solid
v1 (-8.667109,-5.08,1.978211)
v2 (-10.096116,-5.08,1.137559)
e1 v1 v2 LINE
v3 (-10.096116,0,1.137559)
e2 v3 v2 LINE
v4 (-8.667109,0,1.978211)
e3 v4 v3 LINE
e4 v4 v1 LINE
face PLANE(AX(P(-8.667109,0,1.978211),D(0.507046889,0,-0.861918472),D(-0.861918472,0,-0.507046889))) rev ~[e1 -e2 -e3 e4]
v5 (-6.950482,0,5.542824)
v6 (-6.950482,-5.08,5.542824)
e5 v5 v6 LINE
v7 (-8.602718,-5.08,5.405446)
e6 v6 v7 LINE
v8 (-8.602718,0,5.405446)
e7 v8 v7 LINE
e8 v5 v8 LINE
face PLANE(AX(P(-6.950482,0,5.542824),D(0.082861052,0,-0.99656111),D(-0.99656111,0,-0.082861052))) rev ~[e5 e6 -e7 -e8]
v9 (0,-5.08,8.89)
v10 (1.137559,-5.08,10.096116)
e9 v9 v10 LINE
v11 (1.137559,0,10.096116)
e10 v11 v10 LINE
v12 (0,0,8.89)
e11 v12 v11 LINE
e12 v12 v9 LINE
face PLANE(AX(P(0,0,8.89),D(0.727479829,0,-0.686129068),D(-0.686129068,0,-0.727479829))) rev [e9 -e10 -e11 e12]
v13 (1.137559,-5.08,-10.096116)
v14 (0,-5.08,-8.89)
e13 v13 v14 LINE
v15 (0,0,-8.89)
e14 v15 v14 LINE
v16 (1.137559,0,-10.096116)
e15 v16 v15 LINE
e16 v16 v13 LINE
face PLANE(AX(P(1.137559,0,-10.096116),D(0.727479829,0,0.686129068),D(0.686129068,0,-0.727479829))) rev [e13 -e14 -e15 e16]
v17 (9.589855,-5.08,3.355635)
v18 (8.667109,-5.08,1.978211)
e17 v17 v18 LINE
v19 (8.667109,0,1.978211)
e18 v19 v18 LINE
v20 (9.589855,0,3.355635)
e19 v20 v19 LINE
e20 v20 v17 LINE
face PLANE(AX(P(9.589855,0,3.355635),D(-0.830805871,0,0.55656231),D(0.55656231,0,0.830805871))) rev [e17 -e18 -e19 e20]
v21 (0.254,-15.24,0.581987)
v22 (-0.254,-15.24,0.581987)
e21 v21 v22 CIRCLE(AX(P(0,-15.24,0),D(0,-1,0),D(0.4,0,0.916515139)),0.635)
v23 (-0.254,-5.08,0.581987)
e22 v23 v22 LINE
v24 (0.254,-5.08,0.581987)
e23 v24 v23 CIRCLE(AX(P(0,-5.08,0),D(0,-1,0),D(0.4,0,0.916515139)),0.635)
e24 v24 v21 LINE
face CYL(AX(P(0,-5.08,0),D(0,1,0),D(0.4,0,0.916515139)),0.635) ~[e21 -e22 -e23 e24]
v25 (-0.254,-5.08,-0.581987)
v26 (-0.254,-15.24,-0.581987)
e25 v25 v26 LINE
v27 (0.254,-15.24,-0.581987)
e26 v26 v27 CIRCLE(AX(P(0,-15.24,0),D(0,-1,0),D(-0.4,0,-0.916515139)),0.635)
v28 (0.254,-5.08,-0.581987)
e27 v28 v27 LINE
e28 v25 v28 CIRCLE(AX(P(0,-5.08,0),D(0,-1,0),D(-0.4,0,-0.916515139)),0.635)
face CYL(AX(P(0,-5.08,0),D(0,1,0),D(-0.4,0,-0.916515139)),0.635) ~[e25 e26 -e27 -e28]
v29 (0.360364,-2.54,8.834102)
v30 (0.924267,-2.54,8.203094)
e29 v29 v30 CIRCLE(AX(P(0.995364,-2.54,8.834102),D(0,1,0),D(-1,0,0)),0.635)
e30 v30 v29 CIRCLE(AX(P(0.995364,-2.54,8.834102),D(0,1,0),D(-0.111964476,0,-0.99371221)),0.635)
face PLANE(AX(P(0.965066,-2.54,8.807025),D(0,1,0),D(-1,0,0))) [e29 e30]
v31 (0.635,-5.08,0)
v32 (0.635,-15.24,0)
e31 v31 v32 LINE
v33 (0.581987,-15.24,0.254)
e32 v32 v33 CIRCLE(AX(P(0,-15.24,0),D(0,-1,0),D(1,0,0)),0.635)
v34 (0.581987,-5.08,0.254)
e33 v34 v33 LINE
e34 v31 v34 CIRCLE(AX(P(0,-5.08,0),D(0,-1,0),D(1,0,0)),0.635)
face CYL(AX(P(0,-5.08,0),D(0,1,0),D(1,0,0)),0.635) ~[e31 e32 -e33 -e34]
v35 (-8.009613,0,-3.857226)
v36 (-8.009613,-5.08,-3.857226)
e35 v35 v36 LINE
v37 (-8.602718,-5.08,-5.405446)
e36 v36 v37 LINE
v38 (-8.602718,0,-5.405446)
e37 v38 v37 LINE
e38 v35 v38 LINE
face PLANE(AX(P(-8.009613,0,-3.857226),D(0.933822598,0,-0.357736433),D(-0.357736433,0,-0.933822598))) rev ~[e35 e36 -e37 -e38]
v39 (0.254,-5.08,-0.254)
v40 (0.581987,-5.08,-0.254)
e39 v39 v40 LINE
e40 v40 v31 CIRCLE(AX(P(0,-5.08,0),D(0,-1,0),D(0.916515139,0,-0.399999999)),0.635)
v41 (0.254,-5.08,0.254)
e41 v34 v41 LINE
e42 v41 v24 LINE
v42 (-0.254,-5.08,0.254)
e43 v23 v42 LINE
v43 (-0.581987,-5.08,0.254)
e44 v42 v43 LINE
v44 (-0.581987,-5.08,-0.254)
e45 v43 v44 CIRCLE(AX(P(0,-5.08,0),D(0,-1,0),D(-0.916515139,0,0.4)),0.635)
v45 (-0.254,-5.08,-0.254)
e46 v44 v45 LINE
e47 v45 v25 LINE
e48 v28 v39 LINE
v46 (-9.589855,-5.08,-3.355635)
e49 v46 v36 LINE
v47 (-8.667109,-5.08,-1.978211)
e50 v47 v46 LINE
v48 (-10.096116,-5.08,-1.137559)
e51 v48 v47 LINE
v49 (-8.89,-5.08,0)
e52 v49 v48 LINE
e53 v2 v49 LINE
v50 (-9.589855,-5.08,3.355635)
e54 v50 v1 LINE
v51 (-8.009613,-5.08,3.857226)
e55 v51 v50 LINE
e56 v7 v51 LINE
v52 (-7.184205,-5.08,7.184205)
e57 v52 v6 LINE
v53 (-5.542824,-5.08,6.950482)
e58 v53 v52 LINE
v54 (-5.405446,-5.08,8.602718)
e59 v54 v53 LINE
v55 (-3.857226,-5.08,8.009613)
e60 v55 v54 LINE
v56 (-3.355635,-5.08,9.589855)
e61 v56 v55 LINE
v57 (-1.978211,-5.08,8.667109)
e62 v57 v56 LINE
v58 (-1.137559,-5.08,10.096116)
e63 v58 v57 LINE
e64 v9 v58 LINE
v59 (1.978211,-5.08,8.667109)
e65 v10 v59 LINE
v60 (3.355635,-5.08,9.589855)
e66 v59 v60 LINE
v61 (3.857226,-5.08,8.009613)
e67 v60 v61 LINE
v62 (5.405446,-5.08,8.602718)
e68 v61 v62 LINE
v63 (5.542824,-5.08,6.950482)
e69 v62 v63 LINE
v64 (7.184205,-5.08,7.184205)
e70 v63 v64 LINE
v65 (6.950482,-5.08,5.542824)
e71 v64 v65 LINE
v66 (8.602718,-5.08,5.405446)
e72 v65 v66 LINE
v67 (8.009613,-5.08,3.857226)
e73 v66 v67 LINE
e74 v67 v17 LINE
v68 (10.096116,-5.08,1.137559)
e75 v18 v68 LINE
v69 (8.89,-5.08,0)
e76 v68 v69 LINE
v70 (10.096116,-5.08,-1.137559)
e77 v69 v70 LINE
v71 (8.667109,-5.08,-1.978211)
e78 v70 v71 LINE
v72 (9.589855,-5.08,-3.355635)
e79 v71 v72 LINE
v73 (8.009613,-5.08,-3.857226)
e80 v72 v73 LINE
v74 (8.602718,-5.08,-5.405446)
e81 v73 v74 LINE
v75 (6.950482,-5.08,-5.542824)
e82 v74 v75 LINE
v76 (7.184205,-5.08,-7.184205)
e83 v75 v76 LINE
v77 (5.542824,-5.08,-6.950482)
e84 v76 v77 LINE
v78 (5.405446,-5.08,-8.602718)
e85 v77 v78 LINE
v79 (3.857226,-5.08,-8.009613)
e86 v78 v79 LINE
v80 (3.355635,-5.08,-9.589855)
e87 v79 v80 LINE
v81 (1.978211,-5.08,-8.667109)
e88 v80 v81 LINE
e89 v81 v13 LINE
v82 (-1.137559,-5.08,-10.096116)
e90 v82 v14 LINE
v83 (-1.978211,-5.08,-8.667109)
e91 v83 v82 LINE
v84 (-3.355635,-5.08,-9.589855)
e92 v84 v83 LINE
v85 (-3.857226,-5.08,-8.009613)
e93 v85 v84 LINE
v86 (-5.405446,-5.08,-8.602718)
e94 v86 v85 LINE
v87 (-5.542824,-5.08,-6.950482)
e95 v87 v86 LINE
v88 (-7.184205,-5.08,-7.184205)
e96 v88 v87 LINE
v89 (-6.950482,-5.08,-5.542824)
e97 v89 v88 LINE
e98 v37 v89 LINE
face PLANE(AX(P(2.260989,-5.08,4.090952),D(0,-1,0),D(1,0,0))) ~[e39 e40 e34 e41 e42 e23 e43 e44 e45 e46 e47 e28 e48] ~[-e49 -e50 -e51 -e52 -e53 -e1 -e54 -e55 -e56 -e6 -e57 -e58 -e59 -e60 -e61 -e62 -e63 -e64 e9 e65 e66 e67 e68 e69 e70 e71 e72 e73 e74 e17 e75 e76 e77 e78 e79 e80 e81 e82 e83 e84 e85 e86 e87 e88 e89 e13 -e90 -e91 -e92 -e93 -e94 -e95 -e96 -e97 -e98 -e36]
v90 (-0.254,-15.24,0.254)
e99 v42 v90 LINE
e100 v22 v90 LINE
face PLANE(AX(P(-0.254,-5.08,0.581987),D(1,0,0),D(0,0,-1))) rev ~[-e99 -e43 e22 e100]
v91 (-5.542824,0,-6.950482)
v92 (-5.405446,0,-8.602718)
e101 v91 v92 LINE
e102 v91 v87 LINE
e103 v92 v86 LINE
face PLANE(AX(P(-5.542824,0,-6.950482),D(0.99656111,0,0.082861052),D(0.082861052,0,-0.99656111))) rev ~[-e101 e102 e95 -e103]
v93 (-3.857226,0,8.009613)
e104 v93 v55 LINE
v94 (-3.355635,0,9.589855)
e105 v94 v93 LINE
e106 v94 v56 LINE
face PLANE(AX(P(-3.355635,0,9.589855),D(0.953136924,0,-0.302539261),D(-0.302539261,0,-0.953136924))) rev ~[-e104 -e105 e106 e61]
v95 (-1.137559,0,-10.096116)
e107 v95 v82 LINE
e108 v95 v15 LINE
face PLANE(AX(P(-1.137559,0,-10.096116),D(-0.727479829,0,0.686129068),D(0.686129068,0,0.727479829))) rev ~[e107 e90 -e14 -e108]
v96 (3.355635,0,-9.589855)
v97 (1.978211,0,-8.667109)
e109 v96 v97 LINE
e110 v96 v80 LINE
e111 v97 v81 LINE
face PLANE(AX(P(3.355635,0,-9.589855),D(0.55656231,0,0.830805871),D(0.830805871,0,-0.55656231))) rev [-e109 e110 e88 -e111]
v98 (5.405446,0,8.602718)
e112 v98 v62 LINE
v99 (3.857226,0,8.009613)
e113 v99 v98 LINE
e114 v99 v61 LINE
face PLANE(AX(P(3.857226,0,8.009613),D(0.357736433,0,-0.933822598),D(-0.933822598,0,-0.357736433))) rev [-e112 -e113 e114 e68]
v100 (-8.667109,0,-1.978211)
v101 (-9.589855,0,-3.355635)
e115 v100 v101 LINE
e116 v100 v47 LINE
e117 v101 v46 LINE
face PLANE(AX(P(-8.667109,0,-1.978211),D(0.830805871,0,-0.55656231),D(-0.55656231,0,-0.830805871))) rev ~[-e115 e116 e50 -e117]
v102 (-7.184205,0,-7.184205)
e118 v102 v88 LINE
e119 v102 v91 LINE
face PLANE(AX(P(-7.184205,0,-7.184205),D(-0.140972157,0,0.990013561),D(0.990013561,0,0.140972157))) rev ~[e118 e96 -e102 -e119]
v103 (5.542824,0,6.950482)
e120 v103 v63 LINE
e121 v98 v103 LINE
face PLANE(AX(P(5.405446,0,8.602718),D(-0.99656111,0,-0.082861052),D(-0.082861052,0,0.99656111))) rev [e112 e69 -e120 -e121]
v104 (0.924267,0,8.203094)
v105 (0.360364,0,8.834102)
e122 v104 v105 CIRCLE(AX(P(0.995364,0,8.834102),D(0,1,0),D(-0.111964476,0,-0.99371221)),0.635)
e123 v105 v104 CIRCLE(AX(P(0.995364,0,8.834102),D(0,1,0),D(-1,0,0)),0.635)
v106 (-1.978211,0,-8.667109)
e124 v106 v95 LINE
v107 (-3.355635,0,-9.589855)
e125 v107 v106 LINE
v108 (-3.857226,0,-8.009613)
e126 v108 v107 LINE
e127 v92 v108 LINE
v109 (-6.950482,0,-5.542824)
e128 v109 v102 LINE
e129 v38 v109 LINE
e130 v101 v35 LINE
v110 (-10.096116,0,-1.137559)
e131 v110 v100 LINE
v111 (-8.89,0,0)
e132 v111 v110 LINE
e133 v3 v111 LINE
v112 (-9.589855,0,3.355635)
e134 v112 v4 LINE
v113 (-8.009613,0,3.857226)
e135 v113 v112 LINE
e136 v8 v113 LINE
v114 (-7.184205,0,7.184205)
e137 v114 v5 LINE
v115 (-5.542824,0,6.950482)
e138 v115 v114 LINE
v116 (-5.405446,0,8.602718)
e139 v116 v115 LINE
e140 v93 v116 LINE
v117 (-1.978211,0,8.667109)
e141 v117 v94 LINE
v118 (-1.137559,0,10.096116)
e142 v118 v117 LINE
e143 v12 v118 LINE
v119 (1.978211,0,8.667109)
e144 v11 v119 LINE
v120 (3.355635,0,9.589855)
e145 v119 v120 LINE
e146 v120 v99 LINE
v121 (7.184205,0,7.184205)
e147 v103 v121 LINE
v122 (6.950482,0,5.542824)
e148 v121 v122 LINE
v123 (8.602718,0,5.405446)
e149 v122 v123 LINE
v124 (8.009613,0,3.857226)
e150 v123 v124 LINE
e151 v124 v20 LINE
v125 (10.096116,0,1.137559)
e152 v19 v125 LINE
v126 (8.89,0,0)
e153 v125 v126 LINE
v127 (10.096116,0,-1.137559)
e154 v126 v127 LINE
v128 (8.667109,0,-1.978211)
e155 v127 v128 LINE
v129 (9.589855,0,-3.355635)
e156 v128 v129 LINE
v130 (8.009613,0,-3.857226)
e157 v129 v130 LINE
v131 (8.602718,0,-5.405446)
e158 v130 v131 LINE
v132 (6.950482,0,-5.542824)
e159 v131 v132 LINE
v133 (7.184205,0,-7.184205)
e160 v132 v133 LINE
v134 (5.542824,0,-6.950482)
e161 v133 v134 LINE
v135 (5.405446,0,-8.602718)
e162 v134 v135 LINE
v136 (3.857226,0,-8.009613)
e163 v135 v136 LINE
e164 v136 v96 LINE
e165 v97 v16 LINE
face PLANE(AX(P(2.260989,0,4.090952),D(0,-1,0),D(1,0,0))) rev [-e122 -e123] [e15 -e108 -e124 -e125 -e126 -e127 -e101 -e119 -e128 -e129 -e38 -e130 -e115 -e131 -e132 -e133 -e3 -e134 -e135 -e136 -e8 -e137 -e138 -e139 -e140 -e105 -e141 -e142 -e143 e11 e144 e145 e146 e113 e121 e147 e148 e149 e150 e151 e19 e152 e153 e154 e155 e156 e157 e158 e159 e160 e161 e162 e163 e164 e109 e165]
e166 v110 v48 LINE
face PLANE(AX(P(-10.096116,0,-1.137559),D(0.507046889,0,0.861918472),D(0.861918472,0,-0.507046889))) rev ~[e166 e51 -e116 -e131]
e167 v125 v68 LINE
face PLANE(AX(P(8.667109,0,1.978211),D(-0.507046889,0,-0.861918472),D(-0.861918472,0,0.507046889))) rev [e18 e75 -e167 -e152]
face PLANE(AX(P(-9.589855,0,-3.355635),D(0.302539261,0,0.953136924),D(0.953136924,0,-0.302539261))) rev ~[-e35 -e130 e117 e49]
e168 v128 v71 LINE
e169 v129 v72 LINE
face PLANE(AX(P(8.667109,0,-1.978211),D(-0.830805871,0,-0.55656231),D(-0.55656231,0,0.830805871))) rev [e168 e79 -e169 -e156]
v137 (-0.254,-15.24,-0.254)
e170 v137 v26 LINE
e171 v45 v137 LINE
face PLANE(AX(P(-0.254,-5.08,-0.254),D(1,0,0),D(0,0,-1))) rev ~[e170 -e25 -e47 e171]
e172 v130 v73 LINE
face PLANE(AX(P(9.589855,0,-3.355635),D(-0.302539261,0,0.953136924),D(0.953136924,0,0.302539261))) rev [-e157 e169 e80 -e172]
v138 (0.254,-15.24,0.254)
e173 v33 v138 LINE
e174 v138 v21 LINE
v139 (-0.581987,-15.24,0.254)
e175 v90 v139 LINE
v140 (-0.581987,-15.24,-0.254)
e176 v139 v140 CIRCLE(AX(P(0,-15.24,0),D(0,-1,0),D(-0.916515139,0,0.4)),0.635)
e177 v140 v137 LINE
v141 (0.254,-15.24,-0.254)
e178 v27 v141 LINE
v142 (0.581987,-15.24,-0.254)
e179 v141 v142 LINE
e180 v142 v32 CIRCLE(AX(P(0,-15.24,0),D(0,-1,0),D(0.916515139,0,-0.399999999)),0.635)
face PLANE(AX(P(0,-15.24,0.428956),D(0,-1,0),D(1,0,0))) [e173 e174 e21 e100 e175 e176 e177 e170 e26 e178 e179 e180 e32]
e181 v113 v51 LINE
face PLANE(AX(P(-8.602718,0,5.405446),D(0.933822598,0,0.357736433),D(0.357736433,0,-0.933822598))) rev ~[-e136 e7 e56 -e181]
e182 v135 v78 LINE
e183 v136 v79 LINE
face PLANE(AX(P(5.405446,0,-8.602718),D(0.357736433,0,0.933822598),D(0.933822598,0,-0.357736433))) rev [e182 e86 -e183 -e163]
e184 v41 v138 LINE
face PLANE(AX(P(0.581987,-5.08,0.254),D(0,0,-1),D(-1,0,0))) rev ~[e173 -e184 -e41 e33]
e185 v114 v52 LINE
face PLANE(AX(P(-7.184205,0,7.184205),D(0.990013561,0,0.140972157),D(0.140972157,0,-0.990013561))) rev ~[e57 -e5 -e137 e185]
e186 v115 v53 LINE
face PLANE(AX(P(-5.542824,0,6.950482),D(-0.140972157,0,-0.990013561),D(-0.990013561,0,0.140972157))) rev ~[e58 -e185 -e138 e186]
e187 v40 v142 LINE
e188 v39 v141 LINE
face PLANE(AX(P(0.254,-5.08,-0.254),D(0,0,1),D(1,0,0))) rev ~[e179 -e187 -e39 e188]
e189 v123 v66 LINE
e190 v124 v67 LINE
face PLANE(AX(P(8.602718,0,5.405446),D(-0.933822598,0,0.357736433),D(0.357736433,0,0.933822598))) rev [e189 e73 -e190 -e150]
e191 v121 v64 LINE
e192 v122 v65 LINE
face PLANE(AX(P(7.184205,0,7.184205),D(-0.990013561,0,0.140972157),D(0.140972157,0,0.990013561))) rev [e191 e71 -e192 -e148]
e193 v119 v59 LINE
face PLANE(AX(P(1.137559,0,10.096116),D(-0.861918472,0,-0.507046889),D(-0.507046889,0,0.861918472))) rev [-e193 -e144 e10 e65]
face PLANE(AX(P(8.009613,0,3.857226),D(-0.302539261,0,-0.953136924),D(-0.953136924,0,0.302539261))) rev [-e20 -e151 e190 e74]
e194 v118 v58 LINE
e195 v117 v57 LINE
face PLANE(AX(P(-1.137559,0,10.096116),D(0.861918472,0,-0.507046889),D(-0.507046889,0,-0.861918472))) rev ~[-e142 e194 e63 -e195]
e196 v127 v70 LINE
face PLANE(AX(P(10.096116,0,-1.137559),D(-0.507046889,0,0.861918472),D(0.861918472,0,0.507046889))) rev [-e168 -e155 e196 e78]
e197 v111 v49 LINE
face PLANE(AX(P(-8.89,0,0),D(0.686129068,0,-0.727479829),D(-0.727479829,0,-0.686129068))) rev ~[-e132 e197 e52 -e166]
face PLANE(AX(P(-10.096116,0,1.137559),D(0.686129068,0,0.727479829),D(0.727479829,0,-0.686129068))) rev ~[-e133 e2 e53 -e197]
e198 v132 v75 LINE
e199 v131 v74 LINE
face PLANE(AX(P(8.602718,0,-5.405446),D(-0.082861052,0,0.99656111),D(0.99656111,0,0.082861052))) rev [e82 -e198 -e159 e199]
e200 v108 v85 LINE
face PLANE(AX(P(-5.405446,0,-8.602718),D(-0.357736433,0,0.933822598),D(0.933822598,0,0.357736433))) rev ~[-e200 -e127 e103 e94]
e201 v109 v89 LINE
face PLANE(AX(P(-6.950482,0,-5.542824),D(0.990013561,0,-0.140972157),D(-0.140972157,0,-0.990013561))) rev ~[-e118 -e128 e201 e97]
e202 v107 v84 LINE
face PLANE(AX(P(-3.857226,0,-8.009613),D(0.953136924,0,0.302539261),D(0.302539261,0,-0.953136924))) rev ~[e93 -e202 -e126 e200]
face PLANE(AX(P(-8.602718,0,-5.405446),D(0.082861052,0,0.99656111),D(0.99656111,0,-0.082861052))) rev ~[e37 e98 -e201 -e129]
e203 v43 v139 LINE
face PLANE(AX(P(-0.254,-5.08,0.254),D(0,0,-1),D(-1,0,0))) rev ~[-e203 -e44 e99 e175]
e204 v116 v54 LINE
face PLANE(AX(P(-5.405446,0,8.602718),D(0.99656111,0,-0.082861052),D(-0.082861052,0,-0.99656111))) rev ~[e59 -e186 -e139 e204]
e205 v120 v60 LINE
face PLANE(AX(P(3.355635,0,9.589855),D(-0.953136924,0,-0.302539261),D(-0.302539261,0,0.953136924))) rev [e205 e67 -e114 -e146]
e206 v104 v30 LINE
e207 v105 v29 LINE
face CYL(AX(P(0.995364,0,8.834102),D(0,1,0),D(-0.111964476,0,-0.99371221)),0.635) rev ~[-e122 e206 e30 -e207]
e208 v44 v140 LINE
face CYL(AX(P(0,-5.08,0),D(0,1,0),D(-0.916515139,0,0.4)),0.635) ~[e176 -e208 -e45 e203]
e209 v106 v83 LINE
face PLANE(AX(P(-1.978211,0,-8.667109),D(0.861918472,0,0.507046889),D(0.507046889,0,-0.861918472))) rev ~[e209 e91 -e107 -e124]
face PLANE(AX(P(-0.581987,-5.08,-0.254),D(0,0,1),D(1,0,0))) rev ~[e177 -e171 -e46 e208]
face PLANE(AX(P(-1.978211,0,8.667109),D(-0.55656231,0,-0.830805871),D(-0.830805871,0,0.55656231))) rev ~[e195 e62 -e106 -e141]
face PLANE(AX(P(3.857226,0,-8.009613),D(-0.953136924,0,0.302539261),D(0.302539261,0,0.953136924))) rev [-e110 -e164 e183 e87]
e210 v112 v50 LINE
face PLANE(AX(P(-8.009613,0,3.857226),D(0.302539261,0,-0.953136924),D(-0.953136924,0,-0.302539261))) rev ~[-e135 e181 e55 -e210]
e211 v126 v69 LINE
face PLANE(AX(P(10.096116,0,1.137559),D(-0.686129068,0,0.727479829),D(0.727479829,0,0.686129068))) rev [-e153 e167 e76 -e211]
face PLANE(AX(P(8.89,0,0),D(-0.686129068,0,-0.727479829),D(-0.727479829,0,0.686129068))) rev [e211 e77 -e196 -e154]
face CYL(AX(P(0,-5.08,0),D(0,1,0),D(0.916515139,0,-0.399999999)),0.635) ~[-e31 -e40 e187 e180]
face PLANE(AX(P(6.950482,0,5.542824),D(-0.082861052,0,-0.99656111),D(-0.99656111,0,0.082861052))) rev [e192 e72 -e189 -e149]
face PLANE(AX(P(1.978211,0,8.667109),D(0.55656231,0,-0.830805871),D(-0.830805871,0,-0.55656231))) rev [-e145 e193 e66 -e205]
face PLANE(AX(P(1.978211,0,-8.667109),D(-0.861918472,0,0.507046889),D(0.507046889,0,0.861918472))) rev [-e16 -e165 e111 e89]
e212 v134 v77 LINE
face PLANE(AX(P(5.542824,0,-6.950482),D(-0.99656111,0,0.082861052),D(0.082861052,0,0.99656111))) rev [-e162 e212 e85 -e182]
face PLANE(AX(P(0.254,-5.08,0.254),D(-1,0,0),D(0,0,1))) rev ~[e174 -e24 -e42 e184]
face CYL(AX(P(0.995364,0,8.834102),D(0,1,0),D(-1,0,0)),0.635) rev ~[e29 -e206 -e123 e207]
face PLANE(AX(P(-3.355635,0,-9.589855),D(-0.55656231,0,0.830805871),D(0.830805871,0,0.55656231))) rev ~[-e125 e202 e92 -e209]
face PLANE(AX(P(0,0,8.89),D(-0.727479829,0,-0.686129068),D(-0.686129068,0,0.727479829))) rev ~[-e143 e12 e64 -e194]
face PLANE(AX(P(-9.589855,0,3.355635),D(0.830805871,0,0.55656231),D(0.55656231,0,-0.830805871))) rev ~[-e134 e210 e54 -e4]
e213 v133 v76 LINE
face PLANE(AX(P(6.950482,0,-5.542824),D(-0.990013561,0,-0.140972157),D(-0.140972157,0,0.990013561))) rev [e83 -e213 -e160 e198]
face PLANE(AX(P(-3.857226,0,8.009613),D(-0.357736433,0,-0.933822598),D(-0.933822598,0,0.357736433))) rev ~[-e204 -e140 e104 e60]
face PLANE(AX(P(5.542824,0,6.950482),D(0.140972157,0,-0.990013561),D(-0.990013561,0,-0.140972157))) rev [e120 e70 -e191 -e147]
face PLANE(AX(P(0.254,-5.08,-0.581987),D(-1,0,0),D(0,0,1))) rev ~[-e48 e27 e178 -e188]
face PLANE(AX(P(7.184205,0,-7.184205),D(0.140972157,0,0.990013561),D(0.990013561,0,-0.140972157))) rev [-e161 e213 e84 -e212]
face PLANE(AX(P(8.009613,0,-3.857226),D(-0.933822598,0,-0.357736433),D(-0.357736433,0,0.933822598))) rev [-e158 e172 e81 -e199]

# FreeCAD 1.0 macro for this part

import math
import FreeCAD as App
import Part
import Sketcher
from FreeCAD import Vector
Q = App.Units.Quantity

doc = App.newDocument("Part")
body = doc.addObject("PartDesign::Body", "Body")

# Sketch on XZ plane
sketch1 = body.newObject("Sketcher::SketchObject", "Sketch")
sketch1.AttachmentSupport = (doc.getObject("XZ_Plane"), [""])
sketch1.MapMode = "FlatFace"
sketch1.addGeometry(Part.LineSegment(Vector(-3.9, 8, 0), Vector(-5.4, 8.6, 0)), False)
sketch1.addGeometry(Part.LineSegment(Vector(-5.4, 8.6, 0), Vector(-5.5, 7, 0)), False)
sketch1.addGeometry(Part.LineSegment(Vector(-5.5, 7, 0), Vector(-7.2, 7.2, 0)), False)
sketch1.addGeometry(Part.LineSegment(Vector(-7.2, 7.2, 0), Vector(-7, 5.5, 0)), False)
sketch1.addGeometry(Part.LineSegment(Vector(-7, 5.5, 0), Vector(-8.6, 5.4, 0)), False)
sketch1.addGeometry(Part.LineSegment(Vector(-8.6, 5.4, 0), Vector(-8, 3.9, 0)), False)
sketch1.addGeometry(Part.LineSegment(Vector(-8, 3.9, 0), Vector(-9.6, 3.4, 0)), False)
sketch1.addGeometry(Part.LineSegment(Vector(-9.6, 3.4, 0), Vector(-8.7, 2, 0)), False)
sketch1.addGeometry(Part.LineSegment(Vector(-8.7, 2, 0), Vector(-10.1, 1.1, 0)), False)
sketch1.addGeometry(Part.LineSegment(Vector(-10.1, 1.1, 0), Vector(-8.9, 0, 0)), False)
sketch1.addGeometry(Part.LineSegment(Vector(-8.9, 0, 0), Vector(-10.1, -1.1, 0)), False)
sketch1.addGeometry(Part.LineSegment(Vector(-10.1, -1.1, 0), Vector(-8.7, -2, 0)), False)
sketch1.addGeometry(Part.LineSegment(Vector(-8.7, -2, 0), Vector(-9.6, -3.4, 0)), False)
sketch1.addGeometry(Part.LineSegment(Vector(-9.6, -3.4, 0), Vector(-8, -3.9, 0)), False)
sketch1.addGeometry(Part.LineSegment(Vector(-8, -3.9, 0), Vector(-8.6, -5.4, 0)), False)
sketch1.addGeometry(Part.LineSegment(Vector(-8.6, -5.4, 0), Vector(-7, -5.5, 0)), False)
sketch1.addGeometry(Part.LineSegment(Vector(-7, -5.5, 0), Vector(-7.2, -7.2, 0)), False)
sketch1.addGeometry(Part.LineSegment(Vector(-7.2, -7.2, 0), Vector(-5.5, -7, 0)), False)
sketch1.addGeometry(Part.LineSegment(Vector(-5.5, -7, 0), Vector(-5.4, -8.6, 0)), False)
sketch1.addGeometry(Part.LineSegment(Vector(-5.4, -8.6, 0), Vector(-3.9, -8, 0)), False)
sketch1.addGeometry(Part.LineSegment(Vector(-3.9, -8, 0), Vector(-3.4, -9.6, 0)), False)
sketch1.addGeometry(Part.LineSegment(Vector(-3.4, -9.6, 0), Vector(-2, -8.7, 0)), False)
sketch1.addGeometry(Part.LineSegment(Vector(-2, -8.7, 0), Vector(-1.1, -10.1, 0)), False)
sketch1.addGeometry(Part.LineSegment(Vector(-1.1, -10.1, 0), Vector(0, -8.9, 0)), False)
sketch1.addGeometry(Part.LineSegment(Vector(0, -8.9, 0), Vector(0, 8.9, 0)), False)
sketch1.addGeometry(Part.LineSegment(Vector(0, 8.9, 0), Vector(-1.1, 10.1, 0)), False)
sketch1.addGeometry(Part.LineSegment(Vector(-1.1, 10.1, 0), Vector(-2, 8.7, 0)), False)
sketch1.addGeometry(Part.LineSegment(Vector(-2, 8.7, 0), Vector(-3.4, 9.6, 0)), False)
sketch1.addGeometry(Part.LineSegment(Vector(-3.4, 9.6, 0), Vector(-3.9, 8, 0)), False)
sketch1.addConstraint(Sketcher.Constraint("Coincident", 0, 2, 1, 1))
sketch1.addConstraint(Sketcher.Constraint("Coincident", 1, 2, 2, 1))
sketch1.addConstraint(Sketcher.Constraint("Coincident", 2, 2, 3, 1))
sketch1.addConstraint(Sketcher.Constraint("Coincident", 3, 2, 4, 1))
sketch1.addConstraint(Sketcher.Constraint("Coincident", 4, 2, 5, 1))
sketch1.addConstraint(Sketcher.Constraint("Coincident", 5, 2, 6, 1))
sketch1.addConstraint(Sketcher.Constraint("Coincident", 6, 2, 7, 1))
sketch1.addConstraint(Sketcher.Constraint("Coincident", 7, 2, 8, 1))
sketch1.addConstraint(Sketcher.Constraint("Coincident", 8, 2, 9, 1))
sketch1.addConstraint(Sketcher.Constraint("Coincident", 9, 2, 10, 1))
sketch1.addConstraint(Sketcher.Constraint("Coincident", 10, 2, 11, 1))
sketch1.addConstraint(Sketcher.Constraint("Coincident", 11, 2, 12, 1))
sketch1.addConstraint(Sketcher.Constraint("Coincident", 12, 2, 13, 1))
sketch1.addConstraint(Sketcher.Constraint("Coincident", 13, 2, 14, 1))
sketch1.addConstraint(Sketcher.Constraint("Coincident", 14, 2, 15, 1))
sketch1.addConstraint(Sketcher.Constraint("Coincident", 15, 2, 16, 1))
sketch1.addConstraint(Sketcher.Constraint("Coincident", 16, 2, 17, 1))
sketch1.addConstraint(Sketcher.Constraint("Coincident", 17, 2, 18, 1))
sketch1.addConstraint(Sketcher.Constraint("Coincident", 18, 2, 19, 1))
sketch1.addConstraint(Sketcher.Constraint("Coincident", 19, 2, 20, 1))
sketch1.addConstraint(Sketcher.Constraint("Coincident", 20, 2, 21, 1))
sketch1.addConstraint(Sketcher.Constraint("Coincident", 21, 2, 22, 1))
sketch1.addConstraint(Sketcher.Constraint("Coincident", 22, 2, 23, 1))
sketch1.addConstraint(Sketcher.Constraint("Coincident", 23, 2, 24, 1))
sketch1.addConstraint(Sketcher.Constraint("Coincident", 24, 2, 25, 1))
sketch1.addConstraint(Sketcher.Constraint("Coincident", 25, 2, 26, 1))
sketch1.addConstraint(Sketcher.Constraint("Coincident", 26, 2, 27, 1))
sketch1.addConstraint(Sketcher.Constraint("Coincident", 27, 2, 28, 1))
sketch1.addConstraint(Sketcher.Constraint("Coincident", 28, 2, 0, 1))
sketch1.addConstraint(Sketcher.Constraint("Vertical", 24))
sketch1.addConstraint(Sketcher.Constraint("Symmetric", 23, 2, 24, 2, -1, 1))
sketch1.addConstraint(Sketcher.Constraint("Symmetric", 8, 2, 10, 2, -1))
sketch1.addConstraint(Sketcher.Constraint("Symmetric", 7, 2, 11, 2, -1))
sketch1.addConstraint(Sketcher.Constraint("Symmetric", 6, 2, 12, 2, -1))
sketch1.addConstraint(Sketcher.Constraint("Symmetric", 5, 2, 13, 2, -1))
sketch1.addConstraint(Sketcher.Constraint("Symmetric", 4, 2, 14, 2, -1))
sketch1.addConstraint(Sketcher.Constraint("Symmetric", 3, 2, 15, 2, -1))
sketch1.addConstraint(Sketcher.Constraint("Symmetric", 2, 2, 16, 2, -1))
sketch1.addConstraint(Sketcher.Constraint("Symmetric", 1, 2, 17, 2, -1))
sketch1.addConstraint(Sketcher.Constraint("Symmetric", 0, 2, 18, 2, -1))
sketch1.addConstraint(Sketcher.Constraint("Symmetric", 22, 2, 25, 2, -1))
sketch1.addConstraint(Sketcher.Constraint("Symmetric", 21, 2, 26, 2, -1))
sketch1.addConstraint(Sketcher.Constraint("Symmetric", 20, 2, 27, 2, -1))
sketch1.addConstraint(Sketcher.Constraint("Symmetric", 19, 2, 28, 2, -1))
sketch1.addConstraint(Sketcher.Constraint("PointOnObject", 9, 2, -1))
sketch1.addConstraint(Sketcher.Constraint("Perpendicular", 0, 14))
sketch1.addConstraint(Sketcher.Constraint("Perpendicular", 1, 15))
sketch1.addConstraint(Sketcher.Constraint("Perpendicular", 2, 16))
sketch1.addConstraint(Sketcher.Constraint("Perpendicular", 6, 20))
sketch1.addConstraint(Sketcher.Constraint("Perpendicular", 7, 21))
sketch1.addConstraint(Sketcher.Constraint("Perpendicular", 8, 22))
sketch1.addConstraint(Sketcher.Constraint("Perpendicular", 9, 23))
sketch1.addConstraint(Sketcher.Constraint("Equal", 0, 1))
sketch1.addConstraint(Sketcher.Constraint("Equal", 1, 2))
sketch1.addConstraint(Sketcher.Constraint("Equal", 2, 3))
sketch1.addConstraint(Sketcher.Constraint("Equal", 3, 4))
sketch1.addConstraint(Sketcher.Constraint("Equal", 4, 5))
sketch1.addConstraint(Sketcher.Constraint("Equal", 5, 6))
sketch1.addConstraint(Sketcher.Constraint("Equal", 6, 7))
sketch1.addConstraint(Sketcher.Constraint("Equal", 7, 8))
sketch1.addConstraint(Sketcher.Constraint("Equal", 8, 9))
sketch1.addConstraint(Sketcher.Constraint("Equal", 19, 20))
sketch1.addConstraint(Sketcher.Constraint("Equal", 20, 21))
sketch1.addConstraint(Sketcher.Constraint("Equal", 21, 22))
sketch1.addConstraint(Sketcher.Constraint("Equal", 22, 23))
sketch1.addConstraint(Sketcher.Constraint("DistanceY", 24, 1, 24, 2, Q("0.7 in")))
sketch1.addConstraint(Sketcher.Constraint("DistanceX", 8, 2, 4, 2, 1.493398))
sketch1.addConstraint(Sketcher.Constraint("DistanceY", -1, 1, 1, 2, 6.950482))
sketch1.addConstraint(Sketcher.Constraint("DistanceX", 7, 2, -1, 1, 8.667109))
sketch1.addConstraint(Sketcher.Constraint("DistanceY", -1, 1, 7, 2, 1.978211))
sketch1.addConstraint(Sketcher.Constraint("DistanceY", -1, 1, 8, 2, 1.137559))
sketch1.addConstraint(Sketcher.Constraint("DistanceX", 2, 2, 1, 2, 1.641381))
sketch1.addConstraint(Sketcher.Constraint("DistanceY", 5, 2, 4, 2, 1.548219))
pad1 = body.newObject("PartDesign::Pad", "Pad")
pad1.Profile = sketch1
pad1.Length = Q("0.2 in")
body2 = doc.addObject("PartDesign::Body", "Body001")
doc.recompute()

body2.BaseFeature = body
doc.recompute()

mirroring = doc.addObject("Part::Mirroring", "Mirroring")
mirroring.Source = body
mirroring.Base = Vector(0, 0, 0)
mirroring.Normal = Vector(1, 0, 0)
body3 = doc.addObject("PartDesign::Body", "Body002")
body3.BaseFeature = mirroring
boolean = body2.newObject("PartDesign::Boolean", "Boolean")
boolean.Type = "Fuse"
boolean.addObjects([body3])
doc.recompute()

# Sketch on XZ plane
sketch2 = body2.newObject("Sketcher::SketchObject", "Sketch001")
sketch2.AttachmentSupport = (doc.getObject("XZ_Plane001"), [""])
sketch2.MapMode = "FlatFace"
sketch2.AttachmentOffset = App.Placement(Vector(0, 0, 0.2 * 25.4), App.Rotation())
sketch2.addGeometry(Part.ArcOfCircle(Part.Circle(Vector(0, 0, 0), Vector(0, 0, 1), 0.64), math.radians(66), math.radians(114)), False)
sketch2.addGeometry(Part.LineSegment(Vector(-0.25, 0.58, 0), Vector(-0.25, 0.25, 0)), False)
sketch2.addGeometry(Part.LineSegment(Vector(-0.25, 0.25, 0), Vector(-0.58, 0.25, 0)), False)
sketch2.addGeometry(Part.ArcOfCircle(Part.Circle(Vector(0, 0, 0), Vector(0, 0, 1), 0.64), math.radians(156), math.radians(204)), False)
sketch2.addGeometry(Part.LineSegment(Vector(-0.58, -0.25, 0), Vector(-0.25, -0.25, 0)), False)
sketch2.addGeometry(Part.LineSegment(Vector(-0.25, -0.25, 0), Vector(-0.25, -0.58, 0)), False)
sketch2.addGeometry(Part.ArcOfCircle(Part.Circle(Vector(0, 0, 0), Vector(0, 0, 1), 0.64), math.radians(-114), math.radians(-66)), False)
sketch2.addGeometry(Part.LineSegment(Vector(0.25, -0.58, 0), Vector(0.25, -0.25, 0)), False)
sketch2.addGeometry(Part.LineSegment(Vector(0.25, -0.25, 0), Vector(0.58, -0.25, 0)), False)
sketch2.addGeometry(Part.ArcOfCircle(Part.Circle(Vector(0, 0, 0), Vector(0, 0, 1), 0.64), math.radians(-24), math.radians(0)), False)
sketch2.addGeometry(Part.ArcOfCircle(Part.Circle(Vector(0, 0, 0), Vector(0, 0, 1), 0.64), math.radians(0), math.radians(24)), False)
sketch2.addGeometry(Part.LineSegment(Vector(0.58, 0.25, 0), Vector(0.25, 0.25, 0)), False)
sketch2.addGeometry(Part.LineSegment(Vector(0.25, 0.25, 0), Vector(0.25, 0.58, 0)), False)
sketch2.addConstraint(Sketcher.Constraint("Coincident", 0, 2, 1, 1))
sketch2.addConstraint(Sketcher.Constraint("Coincident", 1, 2, 2, 1))
sketch2.addConstraint(Sketcher.Constraint("Coincident", 2, 2, 3, 1))
sketch2.addConstraint(Sketcher.Constraint("Coincident", 3, 2, 4, 1))
sketch2.addConstraint(Sketcher.Constraint("Coincident", 4, 2, 5, 1))
sketch2.addConstraint(Sketcher.Constraint("Coincident", 5, 2, 6, 1))
sketch2.addConstraint(Sketcher.Constraint("Coincident", 6, 2, 7, 1))
sketch2.addConstraint(Sketcher.Constraint("Coincident", 7, 2, 8, 1))
sketch2.addConstraint(Sketcher.Constraint("Coincident", 8, 2, 9, 1))
sketch2.addConstraint(Sketcher.Constraint("Tangent", 9, 2, 10, 1))
sketch2.addConstraint(Sketcher.Constraint("Coincident", 10, 2, 11, 1))
sketch2.addConstraint(Sketcher.Constraint("Coincident", 11, 2, 12, 1))
sketch2.addConstraint(Sketcher.Constraint("Coincident", 12, 2, 0, 1))
sketch2.addConstraint(Sketcher.Constraint("Vertical", 1))
sketch2.addConstraint(Sketcher.Constraint("Horizontal", 2))
sketch2.addConstraint(Sketcher.Constraint("Horizontal", 4))
sketch2.addConstraint(Sketcher.Constraint("Vertical", 5))
sketch2.addConstraint(Sketcher.Constraint("Vertical", 7))
sketch2.addConstraint(Sketcher.Constraint("Horizontal", 8))
sketch2.addConstraint(Sketcher.Constraint("Horizontal", 11))
sketch2.addConstraint(Sketcher.Constraint("Vertical", 12))
sketch2.addConstraint(Sketcher.Constraint("Coincident", 0, 3, -1, 1))
sketch2.addConstraint(Sketcher.Constraint("Coincident", 3, 3, -1, 1))
sketch2.addConstraint(Sketcher.Constraint("Coincident", 6, 3, -1, 1))
sketch2.addConstraint(Sketcher.Constraint("Coincident", 9, 3, -1, 1))
sketch2.addConstraint(Sketcher.Constraint("Equal", 0, 3))
sketch2.addConstraint(Sketcher.Constraint("Equal", 3, 6))
sketch2.addConstraint(Sketcher.Constraint("Equal", 6, 9))
sketch2.addConstraint(Sketcher.Constraint("Equal", 9, 10))
sketch2.addConstraint(Sketcher.Constraint("Symmetric", 1, 2, 7, 2, -1, 1))
sketch2.addConstraint(Sketcher.Constraint("Symmetric", 4, 2, 11, 2, -1, 1))
sketch2.addConstraint(Sketcher.Constraint("Symmetric", 4, 2, 7, 2, -2))
sketch2.addConstraint(Sketcher.Constraint("PointOnObject", 9, 2, -1))
sketch2.addConstraint(Sketcher.Constraint("Equal", 11, 1))
sketch2.addConstraint(Sketcher.Constraint("Radius", 0, Q("0.025 in")))
sketch2.addConstraint(Sketcher.Constraint("DistanceX", 0, 2, -1, 1, Q("0.01 in")))
pad2 = body2.newObject("PartDesign::Pad", "Pad001")
pad2.Profile = sketch2
pad2.Length = Q("0.4 in")

# Sketch on XZ plane
sketch3 = body2.newObject("Sketcher::SketchObject", "Sketch002")
sketch3.AttachmentSupport = (doc.getObject("XZ_Plane001"), [""])
sketch3.MapMode = "FlatFace"
sketch3.addGeometry(Part.ArcOfCircle(Part.Circle(Vector(1, 8.8, 0), Vector(0, 0, 1), 0.6), math.radians(180), math.radians(264)), False)
sketch3.addGeometry(Part.ArcOfCircle(Part.Circle(Vector(1, 8.8, 0), Vector(0, 0, 1), 0.6), math.radians(-96), math.radians(180)), False)
sketch3.addConstraint(Sketcher.Constraint("Tangent", 0, 1, 1, 2))
sketch3.addConstraint(Sketcher.Constraint("Coincident", 1, 1, 0, 2))
sketch3.addConstraint(Sketcher.Constraint("Horizontal", 1, 3, 0, 1))
sketch3.addConstraint(Sketcher.Constraint("Radius", 0, Q("0.025 in")))
sketch3.addConstraint(Sketcher.Constraint("DistanceY", -1, 1, 0, 3, 8.834102))
sketch3.addConstraint(Sketcher.Constraint("DistanceX", -1, 1, 0, 3, 0.995364))
sketch3.addConstraint(Sketcher.Constraint("DistanceX", -1, 1, 1, 1, 0.924267))
pocket1 = body2.newObject("PartDesign::Pocket", "Pocket")
pocket1.Profile = sketch3
pocket1.Length = Q("0.1 in")
pocket1.Reversed = True
mirroring.Visibility = False

doc.recompute()
